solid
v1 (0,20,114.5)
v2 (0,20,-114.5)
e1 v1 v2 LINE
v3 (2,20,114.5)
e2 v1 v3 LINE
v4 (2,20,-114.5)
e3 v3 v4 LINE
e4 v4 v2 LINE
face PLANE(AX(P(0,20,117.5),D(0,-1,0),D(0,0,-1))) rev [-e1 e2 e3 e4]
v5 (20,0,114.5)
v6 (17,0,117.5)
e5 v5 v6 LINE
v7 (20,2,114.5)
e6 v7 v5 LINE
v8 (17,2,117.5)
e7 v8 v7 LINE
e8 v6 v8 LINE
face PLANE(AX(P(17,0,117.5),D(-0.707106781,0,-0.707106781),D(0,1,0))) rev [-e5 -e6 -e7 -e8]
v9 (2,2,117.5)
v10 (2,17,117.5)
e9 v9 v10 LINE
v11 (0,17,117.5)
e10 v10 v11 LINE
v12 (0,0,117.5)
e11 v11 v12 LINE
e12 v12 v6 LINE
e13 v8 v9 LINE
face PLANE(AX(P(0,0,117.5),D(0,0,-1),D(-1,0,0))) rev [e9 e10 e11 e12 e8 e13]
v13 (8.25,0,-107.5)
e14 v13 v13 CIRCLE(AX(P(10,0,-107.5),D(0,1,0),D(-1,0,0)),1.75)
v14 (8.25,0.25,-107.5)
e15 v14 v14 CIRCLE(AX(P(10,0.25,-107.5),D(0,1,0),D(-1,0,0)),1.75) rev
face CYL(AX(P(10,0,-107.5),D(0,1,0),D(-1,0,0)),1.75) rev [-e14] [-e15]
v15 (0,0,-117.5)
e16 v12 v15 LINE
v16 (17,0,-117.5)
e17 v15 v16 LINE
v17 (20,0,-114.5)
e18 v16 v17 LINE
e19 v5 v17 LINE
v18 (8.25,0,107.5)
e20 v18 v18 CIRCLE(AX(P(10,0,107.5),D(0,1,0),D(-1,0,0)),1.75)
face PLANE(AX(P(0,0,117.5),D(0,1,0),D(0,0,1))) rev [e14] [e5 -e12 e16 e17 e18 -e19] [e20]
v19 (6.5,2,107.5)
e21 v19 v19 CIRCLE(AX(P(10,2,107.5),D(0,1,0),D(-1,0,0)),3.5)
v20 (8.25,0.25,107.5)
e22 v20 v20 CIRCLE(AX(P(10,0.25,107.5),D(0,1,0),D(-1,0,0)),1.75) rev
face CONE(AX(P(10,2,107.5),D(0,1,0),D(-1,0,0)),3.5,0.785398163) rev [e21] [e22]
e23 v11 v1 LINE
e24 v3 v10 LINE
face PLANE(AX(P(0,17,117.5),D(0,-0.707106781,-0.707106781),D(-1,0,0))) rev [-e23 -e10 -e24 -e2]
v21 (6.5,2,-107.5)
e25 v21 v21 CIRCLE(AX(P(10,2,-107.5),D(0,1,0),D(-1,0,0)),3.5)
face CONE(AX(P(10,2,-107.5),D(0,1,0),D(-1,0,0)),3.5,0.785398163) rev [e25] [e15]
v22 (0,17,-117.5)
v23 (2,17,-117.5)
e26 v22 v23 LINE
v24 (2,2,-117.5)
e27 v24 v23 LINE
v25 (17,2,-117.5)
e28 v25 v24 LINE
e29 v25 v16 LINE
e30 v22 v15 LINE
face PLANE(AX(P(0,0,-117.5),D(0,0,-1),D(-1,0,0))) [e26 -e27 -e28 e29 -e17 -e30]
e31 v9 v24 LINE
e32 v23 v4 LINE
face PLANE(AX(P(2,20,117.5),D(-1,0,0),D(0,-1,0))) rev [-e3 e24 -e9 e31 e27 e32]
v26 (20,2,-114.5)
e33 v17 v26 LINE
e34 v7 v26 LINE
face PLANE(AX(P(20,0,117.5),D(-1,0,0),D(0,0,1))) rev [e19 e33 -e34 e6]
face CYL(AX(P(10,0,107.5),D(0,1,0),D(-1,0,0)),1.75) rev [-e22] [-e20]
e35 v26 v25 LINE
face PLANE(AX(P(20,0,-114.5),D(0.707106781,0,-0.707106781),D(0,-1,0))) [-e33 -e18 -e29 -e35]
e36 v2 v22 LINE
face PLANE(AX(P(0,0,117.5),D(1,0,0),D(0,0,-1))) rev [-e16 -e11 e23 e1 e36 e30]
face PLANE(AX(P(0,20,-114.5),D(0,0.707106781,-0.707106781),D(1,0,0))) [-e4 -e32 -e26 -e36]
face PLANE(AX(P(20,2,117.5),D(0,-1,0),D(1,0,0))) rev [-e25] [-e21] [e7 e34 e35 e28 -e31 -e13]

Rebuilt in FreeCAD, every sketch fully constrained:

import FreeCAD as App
import Part
import Sketcher
from FreeCAD import Vector


def edges_at(feature, points):
    """Names of the edges that pass closest to the given points."""
    edges = feature.Shape.Edges
    near = lambda p: min(range(len(edges)), key=lambda i: edges[i].distToShape(Part.Vertex(*p))[0])
    return sorted({f"Edge{near(p) + 1}" for p in points})

doc = App.newDocument("Part")
body = doc.addObject("PartDesign::Body", "Body")

# Sketch on XY plane
sketch1 = body.newObject("Sketcher::SketchObject", "Sketch")
sketch1.AttachmentSupport = (doc.getObject("XY_Plane"), [""])
sketch1.MapMode = "FlatFace"
sketch1.addGeometry([
    Part.LineSegment(Vector(0, 0, 0), Vector(20, 0, 0)),  # 0
    Part.LineSegment(Vector(20, 0, 0), Vector(20, 2, 0)),  # 1
    Part.LineSegment(Vector(20, 2, 0), Vector(2, 2, 0)),  # 2
    Part.LineSegment(Vector(2, 2, 0), Vector(2, 20, 0)),  # 3
    Part.LineSegment(Vector(2, 20, 0), Vector(0, 20, 0)),  # 4
    Part.LineSegment(Vector(0, 20, 0), Vector(0, 0, 0)),  # 5
], False)
sketch1.addConstraint([
    Sketcher.Constraint("Coincident", 0, 2, 1, 1),
    Sketcher.Constraint("Coincident", 1, 2, 2, 1),
    Sketcher.Constraint("Coincident", 2, 2, 3, 1),
    Sketcher.Constraint("Coincident", 3, 2, 4, 1),
    Sketcher.Constraint("Coincident", 4, 2, 5, 1),
    Sketcher.Constraint("Coincident", 5, 2, 0, 1),
    Sketcher.Constraint("Horizontal", 0),
    Sketcher.Constraint("Vertical", 1),
    Sketcher.Constraint("Horizontal", 2),
    Sketcher.Constraint("Vertical", 3),
    Sketcher.Constraint("Horizontal", 4),
    Sketcher.Constraint("Vertical", 5),
    Sketcher.Constraint("Coincident", 5, 2, -1, 1),
    Sketcher.Constraint("Equal", 4, 1),
    Sketcher.Constraint("Equal", 2, 3),
    Sketcher.Constraint("DistanceX", 0, 1, 0, 2, 20.0),
    Sketcher.Constraint("DistanceX", 2, 2, 2, 1, 18.0),
])
pad1 = body.newObject("PartDesign::Pad", "Pad")
pad1.Profile = sketch1
pad1.Length = 235
pad1.Midplane = True

# Sketch on YZ plane
sketch2 = body.newObject("Sketcher::SketchObject", "Sketch001")
sketch2.AttachmentSupport = (doc.getObject("YZ_Plane"), [""])
sketch2.MapMode = "FlatFace"
sketch2.AttachmentOffset = App.Placement(Vector(0, 0, 10), App.Rotation())
sketch2.addGeometry([
    Part.LineSegment(Vector(2, -107.5, 0), Vector(2, -104, 0)),
    Part.LineSegment(Vector(2, -104, 0), Vector(-1.5, -107.5, 0)),
    Part.LineSegment(Vector(-1.5, -107.5, 0), Vector(2, -107.5, 0)),
], False)
sketch2.addGeometry(Part.LineSegment(Vector(2, -107.5, 0), Vector(-1.5, -107.5, 0)), True)  # axis
sketch2.addConstraint([
    Sketcher.Constraint("Coincident", 0, 2, 1, 1),
    Sketcher.Constraint("Coincident", 1, 2, 2, 1),
    Sketcher.Constraint("Coincident", 2, 2, 0, 1),
    Sketcher.Constraint("Vertical", 0),
    Sketcher.Constraint("Horizontal", 2),
    Sketcher.Constraint("Horizontal", 3),
    Sketcher.Constraint("Coincident", 3, 1, 2, 2),
    Sketcher.Constraint("Equal", 2, 3),
    Sketcher.Constraint("Equal", 3, 0),
    Sketcher.Constraint("DistanceX", 2, 1, 2, 2, 3.5),
    Sketcher.Constraint("DistanceX", -1, 1, 0, 2, 2.0),
    Sketcher.Constraint("DistanceY", 0, 2, -1, 1, 104.0),
])
groove = body.newObject("PartDesign::Groove", "Groove")
groove.Profile = sketch2
groove.ReferenceAxis = (sketch2, ["Axis0"])
groove.Angle = 360

# Sketch on YZ plane
sketch3 = body.newObject("Sketcher::SketchObject", "Sketch002")
sketch3.AttachmentSupport = (doc.getObject("YZ_Plane"), [""])
sketch3.MapMode = "FlatFace"
sketch3.AttachmentOffset = App.Placement(Vector(0, 0, 10), App.Rotation())
sketch3.addGeometry([
    Part.LineSegment(Vector(2, 107.5, 0), Vector(2, 111, 0)),
    Part.LineSegment(Vector(2, 111, 0), Vector(-1.5, 107.5, 0)),
    Part.LineSegment(Vector(-1.5, 107.5, 0), Vector(2, 107.5, 0)),
], False)
sketch3.addGeometry(Part.LineSegment(Vector(2, 107.5, 0), Vector(-1.5, 107.5, 0)), True)  # axis
sketch3.addConstraint([
    Sketcher.Constraint("Coincident", 0, 2, 1, 1),
    Sketcher.Constraint("Coincident", 1, 2, 2, 1),
    Sketcher.Constraint("Coincident", 2, 2, 0, 1),
    Sketcher.Constraint("Vertical", 0),
    Sketcher.Constraint("Horizontal", 2),
    Sketcher.Constraint("Horizontal", 3),
    Sketcher.Constraint("Coincident", 3, 1, 2, 2),
    Sketcher.Constraint("Equal", 2, 3),
    Sketcher.Constraint("Equal", 3, 0),
    Sketcher.Constraint("DistanceX", 2, 1, 2, 2, 3.5),
    Sketcher.Constraint("DistanceX", -1, 1, 0, 2, 2.0),
    Sketcher.Constraint("DistanceY", -1, 1, 0, 2, 111.0),
])
groove2 = body.newObject("PartDesign::Groove", "Groove001")
groove2.Profile = sketch3
groove2.ReferenceAxis = (sketch3, ["Axis0"])
groove2.Angle = 360

# Sketch on XZ plane
sketch4 = body.newObject("Sketcher::SketchObject", "Sketch003")
sketch4.AttachmentSupport = (doc.getObject("XZ_Plane"), [""])
sketch4.MapMode = "FlatFace"
sketch4.AttachmentOffset = App.Placement(Vector(0, 0, -2), App.Rotation())
sketch4.addGeometry([
    Part.Circle(Vector(10, 107.5, 0), Vector(0, 0, 1), 1.75),
    Part.Circle(Vector(10, -107.5, 0), Vector(0, 0, 1), 1.75),
], False)
sketch4.addConstraint([
    Sketcher.Constraint("Equal", 0, 1),
    Sketcher.Constraint("Symmetric", 0, 3, 1, 3, -1),
    Sketcher.Constraint("Diameter", 0, 3.5),
    Sketcher.Constraint("DistanceX", -1, 1, 0, 3, 10.0),
    Sketcher.Constraint("DistanceY", 1, 3, 0, 3, 215.0),
])
pocket1 = body.newObject("PartDesign::Pocket", "Pocket")
pocket1.Profile = sketch4
pocket1.Type = "ThroughAll"
pocket1.Reversed = True
doc.recompute()

chamfer = body.newObject("PartDesign::Chamfer", "Chamfer")
chamfer.Base = (pocket1, edges_at(pocket1, [
    (20, 1, 117.5),
    (1, 20, 117.5),
    (1, 20, -117.5),
    (20, 1, -117.5),
]))
chamfer.Size = 3

doc.recompute()
